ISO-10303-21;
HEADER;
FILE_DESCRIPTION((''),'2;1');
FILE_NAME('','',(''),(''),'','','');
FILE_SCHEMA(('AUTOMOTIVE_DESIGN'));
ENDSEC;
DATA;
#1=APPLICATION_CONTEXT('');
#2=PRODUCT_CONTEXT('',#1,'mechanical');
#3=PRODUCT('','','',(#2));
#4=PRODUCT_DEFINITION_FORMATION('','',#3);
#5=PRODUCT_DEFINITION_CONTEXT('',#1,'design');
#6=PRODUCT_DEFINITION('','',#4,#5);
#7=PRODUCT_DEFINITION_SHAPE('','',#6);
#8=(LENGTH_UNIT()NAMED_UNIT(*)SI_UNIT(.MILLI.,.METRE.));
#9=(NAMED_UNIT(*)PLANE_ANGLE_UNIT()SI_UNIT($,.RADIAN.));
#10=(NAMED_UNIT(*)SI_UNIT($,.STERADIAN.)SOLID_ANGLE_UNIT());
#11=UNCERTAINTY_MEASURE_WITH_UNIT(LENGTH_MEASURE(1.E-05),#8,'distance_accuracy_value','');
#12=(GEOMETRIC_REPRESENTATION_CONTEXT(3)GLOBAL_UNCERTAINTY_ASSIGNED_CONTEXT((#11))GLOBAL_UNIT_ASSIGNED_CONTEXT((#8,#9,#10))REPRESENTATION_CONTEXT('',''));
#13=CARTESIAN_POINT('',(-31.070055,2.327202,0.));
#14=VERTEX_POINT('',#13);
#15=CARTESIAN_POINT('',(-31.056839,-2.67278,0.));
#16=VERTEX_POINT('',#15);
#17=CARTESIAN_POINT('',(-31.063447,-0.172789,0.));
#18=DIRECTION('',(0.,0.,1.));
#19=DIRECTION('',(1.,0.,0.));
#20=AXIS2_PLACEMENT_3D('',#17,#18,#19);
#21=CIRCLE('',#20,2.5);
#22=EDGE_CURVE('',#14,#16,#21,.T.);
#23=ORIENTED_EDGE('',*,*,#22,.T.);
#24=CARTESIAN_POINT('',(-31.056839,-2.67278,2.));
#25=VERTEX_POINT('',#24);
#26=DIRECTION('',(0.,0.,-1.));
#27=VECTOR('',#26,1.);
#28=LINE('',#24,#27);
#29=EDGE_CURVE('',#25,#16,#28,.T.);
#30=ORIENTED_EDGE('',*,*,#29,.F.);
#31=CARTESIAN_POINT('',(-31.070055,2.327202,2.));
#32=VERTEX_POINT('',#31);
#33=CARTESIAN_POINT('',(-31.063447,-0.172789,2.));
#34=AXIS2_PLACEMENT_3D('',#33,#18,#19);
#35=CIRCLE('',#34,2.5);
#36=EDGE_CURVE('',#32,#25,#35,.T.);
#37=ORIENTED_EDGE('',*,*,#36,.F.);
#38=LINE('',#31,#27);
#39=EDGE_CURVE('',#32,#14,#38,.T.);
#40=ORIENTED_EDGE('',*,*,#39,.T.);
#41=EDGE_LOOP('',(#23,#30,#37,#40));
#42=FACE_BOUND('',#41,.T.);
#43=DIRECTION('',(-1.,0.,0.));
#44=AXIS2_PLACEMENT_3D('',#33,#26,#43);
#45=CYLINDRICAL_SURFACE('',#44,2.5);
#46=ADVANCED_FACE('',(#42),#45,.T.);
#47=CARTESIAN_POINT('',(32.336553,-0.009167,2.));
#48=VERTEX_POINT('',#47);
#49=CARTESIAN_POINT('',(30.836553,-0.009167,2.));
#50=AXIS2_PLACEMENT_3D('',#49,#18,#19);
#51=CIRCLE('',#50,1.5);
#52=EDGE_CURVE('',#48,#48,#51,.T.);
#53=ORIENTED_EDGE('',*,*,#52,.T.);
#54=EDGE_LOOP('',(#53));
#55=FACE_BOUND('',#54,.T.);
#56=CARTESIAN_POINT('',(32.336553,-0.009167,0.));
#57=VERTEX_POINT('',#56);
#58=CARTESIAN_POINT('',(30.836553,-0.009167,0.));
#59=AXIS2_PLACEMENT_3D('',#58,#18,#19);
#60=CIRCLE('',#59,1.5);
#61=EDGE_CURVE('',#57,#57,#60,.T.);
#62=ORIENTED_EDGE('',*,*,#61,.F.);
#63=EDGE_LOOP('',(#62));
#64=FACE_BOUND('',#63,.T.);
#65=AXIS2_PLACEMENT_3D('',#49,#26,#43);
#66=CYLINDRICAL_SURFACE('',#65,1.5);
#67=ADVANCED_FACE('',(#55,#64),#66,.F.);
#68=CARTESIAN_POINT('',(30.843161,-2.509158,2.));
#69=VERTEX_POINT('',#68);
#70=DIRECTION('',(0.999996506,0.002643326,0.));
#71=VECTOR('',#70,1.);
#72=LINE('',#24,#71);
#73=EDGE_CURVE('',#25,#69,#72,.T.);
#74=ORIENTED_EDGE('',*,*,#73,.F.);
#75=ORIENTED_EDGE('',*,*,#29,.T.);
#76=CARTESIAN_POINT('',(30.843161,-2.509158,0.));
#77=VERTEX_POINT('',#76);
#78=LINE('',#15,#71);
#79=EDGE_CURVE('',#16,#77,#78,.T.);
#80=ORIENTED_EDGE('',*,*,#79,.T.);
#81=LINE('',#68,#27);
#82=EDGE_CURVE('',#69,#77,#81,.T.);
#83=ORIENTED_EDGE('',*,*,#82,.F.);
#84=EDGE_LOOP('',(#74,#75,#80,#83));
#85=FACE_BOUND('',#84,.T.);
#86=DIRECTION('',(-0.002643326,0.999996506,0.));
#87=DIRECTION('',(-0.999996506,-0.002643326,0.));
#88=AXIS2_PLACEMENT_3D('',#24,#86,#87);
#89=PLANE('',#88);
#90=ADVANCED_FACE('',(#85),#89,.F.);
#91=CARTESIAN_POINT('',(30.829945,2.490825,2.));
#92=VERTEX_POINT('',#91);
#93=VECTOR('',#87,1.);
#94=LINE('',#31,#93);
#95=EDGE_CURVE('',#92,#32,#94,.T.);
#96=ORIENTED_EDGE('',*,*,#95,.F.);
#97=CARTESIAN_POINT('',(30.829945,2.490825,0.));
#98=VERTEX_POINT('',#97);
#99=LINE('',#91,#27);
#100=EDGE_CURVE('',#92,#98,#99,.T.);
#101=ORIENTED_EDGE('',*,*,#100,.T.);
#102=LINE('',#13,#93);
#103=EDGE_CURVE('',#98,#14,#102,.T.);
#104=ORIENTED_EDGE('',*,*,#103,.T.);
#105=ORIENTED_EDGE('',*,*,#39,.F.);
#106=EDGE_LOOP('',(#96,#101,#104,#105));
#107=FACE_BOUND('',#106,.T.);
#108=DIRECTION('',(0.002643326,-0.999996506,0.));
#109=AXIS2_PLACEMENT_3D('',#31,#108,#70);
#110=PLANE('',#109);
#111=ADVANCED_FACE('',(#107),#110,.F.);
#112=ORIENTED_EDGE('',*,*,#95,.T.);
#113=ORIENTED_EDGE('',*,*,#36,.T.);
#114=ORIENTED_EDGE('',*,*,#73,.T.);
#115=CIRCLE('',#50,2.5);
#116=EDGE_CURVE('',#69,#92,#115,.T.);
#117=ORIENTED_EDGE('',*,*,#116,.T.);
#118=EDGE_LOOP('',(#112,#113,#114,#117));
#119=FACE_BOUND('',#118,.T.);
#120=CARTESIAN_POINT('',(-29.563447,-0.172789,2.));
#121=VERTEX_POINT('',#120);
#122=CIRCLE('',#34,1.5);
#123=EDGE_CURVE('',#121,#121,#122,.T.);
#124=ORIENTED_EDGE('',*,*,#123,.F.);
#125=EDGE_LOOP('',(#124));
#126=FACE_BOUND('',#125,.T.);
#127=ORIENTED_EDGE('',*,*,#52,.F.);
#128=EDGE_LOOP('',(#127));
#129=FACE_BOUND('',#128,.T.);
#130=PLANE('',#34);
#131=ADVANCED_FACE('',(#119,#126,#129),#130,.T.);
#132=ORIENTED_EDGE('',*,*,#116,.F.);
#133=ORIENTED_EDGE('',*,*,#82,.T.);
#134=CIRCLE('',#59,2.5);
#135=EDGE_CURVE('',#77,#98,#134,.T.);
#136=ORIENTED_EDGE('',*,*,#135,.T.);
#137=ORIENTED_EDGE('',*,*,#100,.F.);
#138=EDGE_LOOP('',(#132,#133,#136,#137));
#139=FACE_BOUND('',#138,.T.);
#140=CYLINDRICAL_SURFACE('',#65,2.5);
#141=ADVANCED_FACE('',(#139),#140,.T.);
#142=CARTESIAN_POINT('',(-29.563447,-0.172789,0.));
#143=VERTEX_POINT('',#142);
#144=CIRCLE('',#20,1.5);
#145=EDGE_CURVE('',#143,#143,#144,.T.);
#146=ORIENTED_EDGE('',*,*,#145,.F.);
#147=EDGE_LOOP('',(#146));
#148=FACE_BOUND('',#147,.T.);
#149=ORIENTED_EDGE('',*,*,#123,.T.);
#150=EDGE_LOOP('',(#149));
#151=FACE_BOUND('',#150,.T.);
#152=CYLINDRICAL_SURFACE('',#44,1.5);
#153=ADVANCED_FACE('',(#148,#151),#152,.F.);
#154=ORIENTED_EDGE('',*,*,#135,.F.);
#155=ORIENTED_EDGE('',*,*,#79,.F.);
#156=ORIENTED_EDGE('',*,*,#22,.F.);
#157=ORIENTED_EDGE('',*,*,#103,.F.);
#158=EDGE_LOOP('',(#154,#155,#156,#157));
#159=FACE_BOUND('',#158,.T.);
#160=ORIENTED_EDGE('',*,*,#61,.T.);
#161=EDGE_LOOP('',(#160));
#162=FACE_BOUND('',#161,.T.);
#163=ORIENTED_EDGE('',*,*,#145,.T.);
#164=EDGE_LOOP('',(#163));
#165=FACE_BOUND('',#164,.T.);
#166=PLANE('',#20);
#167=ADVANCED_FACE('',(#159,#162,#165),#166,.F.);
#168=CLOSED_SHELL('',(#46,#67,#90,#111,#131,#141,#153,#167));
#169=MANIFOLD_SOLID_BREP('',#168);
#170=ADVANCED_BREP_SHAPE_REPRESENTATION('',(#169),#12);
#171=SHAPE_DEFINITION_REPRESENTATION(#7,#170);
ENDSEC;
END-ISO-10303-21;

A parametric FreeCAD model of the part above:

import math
import FreeCAD as App
import Part
import Sketcher
from FreeCAD import Vector
Q = App.Units.Quantity

doc = App.newDocument("Part")
body = doc.addObject("PartDesign::Body", "Body")

# Sketch on XY plane
sketch1 = doc.addObject("Sketcher::SketchObject", "Sketch")
body.addObject(sketch1)
sketch1.AttachmentSupport = (doc.XY_Plane, [""])
sketch1.MapMode = "FlatFace"
sketch1.addGeometry([
    Part.LineSegment(Vector(30.829945, 2.490825, 0), Vector(-31.070055, 2.327202, 0)),  # 0
    Part.ArcOfCircle(Part.Circle(Vector(-31.063447, -0.172789, 0), Vector(0, 0, 1), 2.5), math.radians(90.151452), math.radians(270.151452)),  # 1
    Part.LineSegment(Vector(-31.056839, -2.67278, 0), Vector(30.843161, -2.509158, 0)),  # 2
    Part.ArcOfCircle(Part.Circle(Vector(30.836553, -0.009167, 0), Vector(0, 0, 1), 2.5), math.radians(-89.848548), math.radians(90.151452)),  # 3
    Part.Circle(Vector(-31.063447, -0.172789, 0), Vector(0, 0, 1), 1.5),  # 4
    Part.Circle(Vector(30.836553, -0.009167, 0), Vector(0, 0, 1), 1.5),  # 5
], False)
sketch1.addConstraint([
    Sketcher.Constraint("Tangent", 0, 2, 1, 1),
    Sketcher.Constraint("Tangent", 1, 2, 2, 1),
    Sketcher.Constraint("Tangent", 2, 2, 3, 1),
    Sketcher.Constraint("Tangent", 3, 2, 0, 1),
    Sketcher.Constraint("Coincident", 4, 3, 1, 3),
    Sketcher.Constraint("Coincident", 5, 3, 3, 3),
    Sketcher.Constraint("Equal", 1, 3),
    Sketcher.Constraint("Equal", 4, 5),
    Sketcher.Constraint("Diameter", 4, Q("3 mm")),
    Sketcher.Constraint("Radius", 1, Q("2.5 mm")),
    Sketcher.Constraint("DistanceX", 1, 3, 3, 3, Q("61.9 mm")),
    Sketcher.Constraint("DistanceY", 1, 3, -1, 1, Q("0.172789 mm")),
    Sketcher.Constraint("DistanceX", 1, 2, -1, 1, Q("31.056839 mm")),
    Sketcher.Constraint("DistanceX", 0, 2, 1, 3, Q("0.006608 mm")),
])
pad1 = doc.addObject("PartDesign::Pad", "Pad")
body.addObject(pad1)
pad1.Profile = sketch1
pad1.Length = 2

doc.recompute()
